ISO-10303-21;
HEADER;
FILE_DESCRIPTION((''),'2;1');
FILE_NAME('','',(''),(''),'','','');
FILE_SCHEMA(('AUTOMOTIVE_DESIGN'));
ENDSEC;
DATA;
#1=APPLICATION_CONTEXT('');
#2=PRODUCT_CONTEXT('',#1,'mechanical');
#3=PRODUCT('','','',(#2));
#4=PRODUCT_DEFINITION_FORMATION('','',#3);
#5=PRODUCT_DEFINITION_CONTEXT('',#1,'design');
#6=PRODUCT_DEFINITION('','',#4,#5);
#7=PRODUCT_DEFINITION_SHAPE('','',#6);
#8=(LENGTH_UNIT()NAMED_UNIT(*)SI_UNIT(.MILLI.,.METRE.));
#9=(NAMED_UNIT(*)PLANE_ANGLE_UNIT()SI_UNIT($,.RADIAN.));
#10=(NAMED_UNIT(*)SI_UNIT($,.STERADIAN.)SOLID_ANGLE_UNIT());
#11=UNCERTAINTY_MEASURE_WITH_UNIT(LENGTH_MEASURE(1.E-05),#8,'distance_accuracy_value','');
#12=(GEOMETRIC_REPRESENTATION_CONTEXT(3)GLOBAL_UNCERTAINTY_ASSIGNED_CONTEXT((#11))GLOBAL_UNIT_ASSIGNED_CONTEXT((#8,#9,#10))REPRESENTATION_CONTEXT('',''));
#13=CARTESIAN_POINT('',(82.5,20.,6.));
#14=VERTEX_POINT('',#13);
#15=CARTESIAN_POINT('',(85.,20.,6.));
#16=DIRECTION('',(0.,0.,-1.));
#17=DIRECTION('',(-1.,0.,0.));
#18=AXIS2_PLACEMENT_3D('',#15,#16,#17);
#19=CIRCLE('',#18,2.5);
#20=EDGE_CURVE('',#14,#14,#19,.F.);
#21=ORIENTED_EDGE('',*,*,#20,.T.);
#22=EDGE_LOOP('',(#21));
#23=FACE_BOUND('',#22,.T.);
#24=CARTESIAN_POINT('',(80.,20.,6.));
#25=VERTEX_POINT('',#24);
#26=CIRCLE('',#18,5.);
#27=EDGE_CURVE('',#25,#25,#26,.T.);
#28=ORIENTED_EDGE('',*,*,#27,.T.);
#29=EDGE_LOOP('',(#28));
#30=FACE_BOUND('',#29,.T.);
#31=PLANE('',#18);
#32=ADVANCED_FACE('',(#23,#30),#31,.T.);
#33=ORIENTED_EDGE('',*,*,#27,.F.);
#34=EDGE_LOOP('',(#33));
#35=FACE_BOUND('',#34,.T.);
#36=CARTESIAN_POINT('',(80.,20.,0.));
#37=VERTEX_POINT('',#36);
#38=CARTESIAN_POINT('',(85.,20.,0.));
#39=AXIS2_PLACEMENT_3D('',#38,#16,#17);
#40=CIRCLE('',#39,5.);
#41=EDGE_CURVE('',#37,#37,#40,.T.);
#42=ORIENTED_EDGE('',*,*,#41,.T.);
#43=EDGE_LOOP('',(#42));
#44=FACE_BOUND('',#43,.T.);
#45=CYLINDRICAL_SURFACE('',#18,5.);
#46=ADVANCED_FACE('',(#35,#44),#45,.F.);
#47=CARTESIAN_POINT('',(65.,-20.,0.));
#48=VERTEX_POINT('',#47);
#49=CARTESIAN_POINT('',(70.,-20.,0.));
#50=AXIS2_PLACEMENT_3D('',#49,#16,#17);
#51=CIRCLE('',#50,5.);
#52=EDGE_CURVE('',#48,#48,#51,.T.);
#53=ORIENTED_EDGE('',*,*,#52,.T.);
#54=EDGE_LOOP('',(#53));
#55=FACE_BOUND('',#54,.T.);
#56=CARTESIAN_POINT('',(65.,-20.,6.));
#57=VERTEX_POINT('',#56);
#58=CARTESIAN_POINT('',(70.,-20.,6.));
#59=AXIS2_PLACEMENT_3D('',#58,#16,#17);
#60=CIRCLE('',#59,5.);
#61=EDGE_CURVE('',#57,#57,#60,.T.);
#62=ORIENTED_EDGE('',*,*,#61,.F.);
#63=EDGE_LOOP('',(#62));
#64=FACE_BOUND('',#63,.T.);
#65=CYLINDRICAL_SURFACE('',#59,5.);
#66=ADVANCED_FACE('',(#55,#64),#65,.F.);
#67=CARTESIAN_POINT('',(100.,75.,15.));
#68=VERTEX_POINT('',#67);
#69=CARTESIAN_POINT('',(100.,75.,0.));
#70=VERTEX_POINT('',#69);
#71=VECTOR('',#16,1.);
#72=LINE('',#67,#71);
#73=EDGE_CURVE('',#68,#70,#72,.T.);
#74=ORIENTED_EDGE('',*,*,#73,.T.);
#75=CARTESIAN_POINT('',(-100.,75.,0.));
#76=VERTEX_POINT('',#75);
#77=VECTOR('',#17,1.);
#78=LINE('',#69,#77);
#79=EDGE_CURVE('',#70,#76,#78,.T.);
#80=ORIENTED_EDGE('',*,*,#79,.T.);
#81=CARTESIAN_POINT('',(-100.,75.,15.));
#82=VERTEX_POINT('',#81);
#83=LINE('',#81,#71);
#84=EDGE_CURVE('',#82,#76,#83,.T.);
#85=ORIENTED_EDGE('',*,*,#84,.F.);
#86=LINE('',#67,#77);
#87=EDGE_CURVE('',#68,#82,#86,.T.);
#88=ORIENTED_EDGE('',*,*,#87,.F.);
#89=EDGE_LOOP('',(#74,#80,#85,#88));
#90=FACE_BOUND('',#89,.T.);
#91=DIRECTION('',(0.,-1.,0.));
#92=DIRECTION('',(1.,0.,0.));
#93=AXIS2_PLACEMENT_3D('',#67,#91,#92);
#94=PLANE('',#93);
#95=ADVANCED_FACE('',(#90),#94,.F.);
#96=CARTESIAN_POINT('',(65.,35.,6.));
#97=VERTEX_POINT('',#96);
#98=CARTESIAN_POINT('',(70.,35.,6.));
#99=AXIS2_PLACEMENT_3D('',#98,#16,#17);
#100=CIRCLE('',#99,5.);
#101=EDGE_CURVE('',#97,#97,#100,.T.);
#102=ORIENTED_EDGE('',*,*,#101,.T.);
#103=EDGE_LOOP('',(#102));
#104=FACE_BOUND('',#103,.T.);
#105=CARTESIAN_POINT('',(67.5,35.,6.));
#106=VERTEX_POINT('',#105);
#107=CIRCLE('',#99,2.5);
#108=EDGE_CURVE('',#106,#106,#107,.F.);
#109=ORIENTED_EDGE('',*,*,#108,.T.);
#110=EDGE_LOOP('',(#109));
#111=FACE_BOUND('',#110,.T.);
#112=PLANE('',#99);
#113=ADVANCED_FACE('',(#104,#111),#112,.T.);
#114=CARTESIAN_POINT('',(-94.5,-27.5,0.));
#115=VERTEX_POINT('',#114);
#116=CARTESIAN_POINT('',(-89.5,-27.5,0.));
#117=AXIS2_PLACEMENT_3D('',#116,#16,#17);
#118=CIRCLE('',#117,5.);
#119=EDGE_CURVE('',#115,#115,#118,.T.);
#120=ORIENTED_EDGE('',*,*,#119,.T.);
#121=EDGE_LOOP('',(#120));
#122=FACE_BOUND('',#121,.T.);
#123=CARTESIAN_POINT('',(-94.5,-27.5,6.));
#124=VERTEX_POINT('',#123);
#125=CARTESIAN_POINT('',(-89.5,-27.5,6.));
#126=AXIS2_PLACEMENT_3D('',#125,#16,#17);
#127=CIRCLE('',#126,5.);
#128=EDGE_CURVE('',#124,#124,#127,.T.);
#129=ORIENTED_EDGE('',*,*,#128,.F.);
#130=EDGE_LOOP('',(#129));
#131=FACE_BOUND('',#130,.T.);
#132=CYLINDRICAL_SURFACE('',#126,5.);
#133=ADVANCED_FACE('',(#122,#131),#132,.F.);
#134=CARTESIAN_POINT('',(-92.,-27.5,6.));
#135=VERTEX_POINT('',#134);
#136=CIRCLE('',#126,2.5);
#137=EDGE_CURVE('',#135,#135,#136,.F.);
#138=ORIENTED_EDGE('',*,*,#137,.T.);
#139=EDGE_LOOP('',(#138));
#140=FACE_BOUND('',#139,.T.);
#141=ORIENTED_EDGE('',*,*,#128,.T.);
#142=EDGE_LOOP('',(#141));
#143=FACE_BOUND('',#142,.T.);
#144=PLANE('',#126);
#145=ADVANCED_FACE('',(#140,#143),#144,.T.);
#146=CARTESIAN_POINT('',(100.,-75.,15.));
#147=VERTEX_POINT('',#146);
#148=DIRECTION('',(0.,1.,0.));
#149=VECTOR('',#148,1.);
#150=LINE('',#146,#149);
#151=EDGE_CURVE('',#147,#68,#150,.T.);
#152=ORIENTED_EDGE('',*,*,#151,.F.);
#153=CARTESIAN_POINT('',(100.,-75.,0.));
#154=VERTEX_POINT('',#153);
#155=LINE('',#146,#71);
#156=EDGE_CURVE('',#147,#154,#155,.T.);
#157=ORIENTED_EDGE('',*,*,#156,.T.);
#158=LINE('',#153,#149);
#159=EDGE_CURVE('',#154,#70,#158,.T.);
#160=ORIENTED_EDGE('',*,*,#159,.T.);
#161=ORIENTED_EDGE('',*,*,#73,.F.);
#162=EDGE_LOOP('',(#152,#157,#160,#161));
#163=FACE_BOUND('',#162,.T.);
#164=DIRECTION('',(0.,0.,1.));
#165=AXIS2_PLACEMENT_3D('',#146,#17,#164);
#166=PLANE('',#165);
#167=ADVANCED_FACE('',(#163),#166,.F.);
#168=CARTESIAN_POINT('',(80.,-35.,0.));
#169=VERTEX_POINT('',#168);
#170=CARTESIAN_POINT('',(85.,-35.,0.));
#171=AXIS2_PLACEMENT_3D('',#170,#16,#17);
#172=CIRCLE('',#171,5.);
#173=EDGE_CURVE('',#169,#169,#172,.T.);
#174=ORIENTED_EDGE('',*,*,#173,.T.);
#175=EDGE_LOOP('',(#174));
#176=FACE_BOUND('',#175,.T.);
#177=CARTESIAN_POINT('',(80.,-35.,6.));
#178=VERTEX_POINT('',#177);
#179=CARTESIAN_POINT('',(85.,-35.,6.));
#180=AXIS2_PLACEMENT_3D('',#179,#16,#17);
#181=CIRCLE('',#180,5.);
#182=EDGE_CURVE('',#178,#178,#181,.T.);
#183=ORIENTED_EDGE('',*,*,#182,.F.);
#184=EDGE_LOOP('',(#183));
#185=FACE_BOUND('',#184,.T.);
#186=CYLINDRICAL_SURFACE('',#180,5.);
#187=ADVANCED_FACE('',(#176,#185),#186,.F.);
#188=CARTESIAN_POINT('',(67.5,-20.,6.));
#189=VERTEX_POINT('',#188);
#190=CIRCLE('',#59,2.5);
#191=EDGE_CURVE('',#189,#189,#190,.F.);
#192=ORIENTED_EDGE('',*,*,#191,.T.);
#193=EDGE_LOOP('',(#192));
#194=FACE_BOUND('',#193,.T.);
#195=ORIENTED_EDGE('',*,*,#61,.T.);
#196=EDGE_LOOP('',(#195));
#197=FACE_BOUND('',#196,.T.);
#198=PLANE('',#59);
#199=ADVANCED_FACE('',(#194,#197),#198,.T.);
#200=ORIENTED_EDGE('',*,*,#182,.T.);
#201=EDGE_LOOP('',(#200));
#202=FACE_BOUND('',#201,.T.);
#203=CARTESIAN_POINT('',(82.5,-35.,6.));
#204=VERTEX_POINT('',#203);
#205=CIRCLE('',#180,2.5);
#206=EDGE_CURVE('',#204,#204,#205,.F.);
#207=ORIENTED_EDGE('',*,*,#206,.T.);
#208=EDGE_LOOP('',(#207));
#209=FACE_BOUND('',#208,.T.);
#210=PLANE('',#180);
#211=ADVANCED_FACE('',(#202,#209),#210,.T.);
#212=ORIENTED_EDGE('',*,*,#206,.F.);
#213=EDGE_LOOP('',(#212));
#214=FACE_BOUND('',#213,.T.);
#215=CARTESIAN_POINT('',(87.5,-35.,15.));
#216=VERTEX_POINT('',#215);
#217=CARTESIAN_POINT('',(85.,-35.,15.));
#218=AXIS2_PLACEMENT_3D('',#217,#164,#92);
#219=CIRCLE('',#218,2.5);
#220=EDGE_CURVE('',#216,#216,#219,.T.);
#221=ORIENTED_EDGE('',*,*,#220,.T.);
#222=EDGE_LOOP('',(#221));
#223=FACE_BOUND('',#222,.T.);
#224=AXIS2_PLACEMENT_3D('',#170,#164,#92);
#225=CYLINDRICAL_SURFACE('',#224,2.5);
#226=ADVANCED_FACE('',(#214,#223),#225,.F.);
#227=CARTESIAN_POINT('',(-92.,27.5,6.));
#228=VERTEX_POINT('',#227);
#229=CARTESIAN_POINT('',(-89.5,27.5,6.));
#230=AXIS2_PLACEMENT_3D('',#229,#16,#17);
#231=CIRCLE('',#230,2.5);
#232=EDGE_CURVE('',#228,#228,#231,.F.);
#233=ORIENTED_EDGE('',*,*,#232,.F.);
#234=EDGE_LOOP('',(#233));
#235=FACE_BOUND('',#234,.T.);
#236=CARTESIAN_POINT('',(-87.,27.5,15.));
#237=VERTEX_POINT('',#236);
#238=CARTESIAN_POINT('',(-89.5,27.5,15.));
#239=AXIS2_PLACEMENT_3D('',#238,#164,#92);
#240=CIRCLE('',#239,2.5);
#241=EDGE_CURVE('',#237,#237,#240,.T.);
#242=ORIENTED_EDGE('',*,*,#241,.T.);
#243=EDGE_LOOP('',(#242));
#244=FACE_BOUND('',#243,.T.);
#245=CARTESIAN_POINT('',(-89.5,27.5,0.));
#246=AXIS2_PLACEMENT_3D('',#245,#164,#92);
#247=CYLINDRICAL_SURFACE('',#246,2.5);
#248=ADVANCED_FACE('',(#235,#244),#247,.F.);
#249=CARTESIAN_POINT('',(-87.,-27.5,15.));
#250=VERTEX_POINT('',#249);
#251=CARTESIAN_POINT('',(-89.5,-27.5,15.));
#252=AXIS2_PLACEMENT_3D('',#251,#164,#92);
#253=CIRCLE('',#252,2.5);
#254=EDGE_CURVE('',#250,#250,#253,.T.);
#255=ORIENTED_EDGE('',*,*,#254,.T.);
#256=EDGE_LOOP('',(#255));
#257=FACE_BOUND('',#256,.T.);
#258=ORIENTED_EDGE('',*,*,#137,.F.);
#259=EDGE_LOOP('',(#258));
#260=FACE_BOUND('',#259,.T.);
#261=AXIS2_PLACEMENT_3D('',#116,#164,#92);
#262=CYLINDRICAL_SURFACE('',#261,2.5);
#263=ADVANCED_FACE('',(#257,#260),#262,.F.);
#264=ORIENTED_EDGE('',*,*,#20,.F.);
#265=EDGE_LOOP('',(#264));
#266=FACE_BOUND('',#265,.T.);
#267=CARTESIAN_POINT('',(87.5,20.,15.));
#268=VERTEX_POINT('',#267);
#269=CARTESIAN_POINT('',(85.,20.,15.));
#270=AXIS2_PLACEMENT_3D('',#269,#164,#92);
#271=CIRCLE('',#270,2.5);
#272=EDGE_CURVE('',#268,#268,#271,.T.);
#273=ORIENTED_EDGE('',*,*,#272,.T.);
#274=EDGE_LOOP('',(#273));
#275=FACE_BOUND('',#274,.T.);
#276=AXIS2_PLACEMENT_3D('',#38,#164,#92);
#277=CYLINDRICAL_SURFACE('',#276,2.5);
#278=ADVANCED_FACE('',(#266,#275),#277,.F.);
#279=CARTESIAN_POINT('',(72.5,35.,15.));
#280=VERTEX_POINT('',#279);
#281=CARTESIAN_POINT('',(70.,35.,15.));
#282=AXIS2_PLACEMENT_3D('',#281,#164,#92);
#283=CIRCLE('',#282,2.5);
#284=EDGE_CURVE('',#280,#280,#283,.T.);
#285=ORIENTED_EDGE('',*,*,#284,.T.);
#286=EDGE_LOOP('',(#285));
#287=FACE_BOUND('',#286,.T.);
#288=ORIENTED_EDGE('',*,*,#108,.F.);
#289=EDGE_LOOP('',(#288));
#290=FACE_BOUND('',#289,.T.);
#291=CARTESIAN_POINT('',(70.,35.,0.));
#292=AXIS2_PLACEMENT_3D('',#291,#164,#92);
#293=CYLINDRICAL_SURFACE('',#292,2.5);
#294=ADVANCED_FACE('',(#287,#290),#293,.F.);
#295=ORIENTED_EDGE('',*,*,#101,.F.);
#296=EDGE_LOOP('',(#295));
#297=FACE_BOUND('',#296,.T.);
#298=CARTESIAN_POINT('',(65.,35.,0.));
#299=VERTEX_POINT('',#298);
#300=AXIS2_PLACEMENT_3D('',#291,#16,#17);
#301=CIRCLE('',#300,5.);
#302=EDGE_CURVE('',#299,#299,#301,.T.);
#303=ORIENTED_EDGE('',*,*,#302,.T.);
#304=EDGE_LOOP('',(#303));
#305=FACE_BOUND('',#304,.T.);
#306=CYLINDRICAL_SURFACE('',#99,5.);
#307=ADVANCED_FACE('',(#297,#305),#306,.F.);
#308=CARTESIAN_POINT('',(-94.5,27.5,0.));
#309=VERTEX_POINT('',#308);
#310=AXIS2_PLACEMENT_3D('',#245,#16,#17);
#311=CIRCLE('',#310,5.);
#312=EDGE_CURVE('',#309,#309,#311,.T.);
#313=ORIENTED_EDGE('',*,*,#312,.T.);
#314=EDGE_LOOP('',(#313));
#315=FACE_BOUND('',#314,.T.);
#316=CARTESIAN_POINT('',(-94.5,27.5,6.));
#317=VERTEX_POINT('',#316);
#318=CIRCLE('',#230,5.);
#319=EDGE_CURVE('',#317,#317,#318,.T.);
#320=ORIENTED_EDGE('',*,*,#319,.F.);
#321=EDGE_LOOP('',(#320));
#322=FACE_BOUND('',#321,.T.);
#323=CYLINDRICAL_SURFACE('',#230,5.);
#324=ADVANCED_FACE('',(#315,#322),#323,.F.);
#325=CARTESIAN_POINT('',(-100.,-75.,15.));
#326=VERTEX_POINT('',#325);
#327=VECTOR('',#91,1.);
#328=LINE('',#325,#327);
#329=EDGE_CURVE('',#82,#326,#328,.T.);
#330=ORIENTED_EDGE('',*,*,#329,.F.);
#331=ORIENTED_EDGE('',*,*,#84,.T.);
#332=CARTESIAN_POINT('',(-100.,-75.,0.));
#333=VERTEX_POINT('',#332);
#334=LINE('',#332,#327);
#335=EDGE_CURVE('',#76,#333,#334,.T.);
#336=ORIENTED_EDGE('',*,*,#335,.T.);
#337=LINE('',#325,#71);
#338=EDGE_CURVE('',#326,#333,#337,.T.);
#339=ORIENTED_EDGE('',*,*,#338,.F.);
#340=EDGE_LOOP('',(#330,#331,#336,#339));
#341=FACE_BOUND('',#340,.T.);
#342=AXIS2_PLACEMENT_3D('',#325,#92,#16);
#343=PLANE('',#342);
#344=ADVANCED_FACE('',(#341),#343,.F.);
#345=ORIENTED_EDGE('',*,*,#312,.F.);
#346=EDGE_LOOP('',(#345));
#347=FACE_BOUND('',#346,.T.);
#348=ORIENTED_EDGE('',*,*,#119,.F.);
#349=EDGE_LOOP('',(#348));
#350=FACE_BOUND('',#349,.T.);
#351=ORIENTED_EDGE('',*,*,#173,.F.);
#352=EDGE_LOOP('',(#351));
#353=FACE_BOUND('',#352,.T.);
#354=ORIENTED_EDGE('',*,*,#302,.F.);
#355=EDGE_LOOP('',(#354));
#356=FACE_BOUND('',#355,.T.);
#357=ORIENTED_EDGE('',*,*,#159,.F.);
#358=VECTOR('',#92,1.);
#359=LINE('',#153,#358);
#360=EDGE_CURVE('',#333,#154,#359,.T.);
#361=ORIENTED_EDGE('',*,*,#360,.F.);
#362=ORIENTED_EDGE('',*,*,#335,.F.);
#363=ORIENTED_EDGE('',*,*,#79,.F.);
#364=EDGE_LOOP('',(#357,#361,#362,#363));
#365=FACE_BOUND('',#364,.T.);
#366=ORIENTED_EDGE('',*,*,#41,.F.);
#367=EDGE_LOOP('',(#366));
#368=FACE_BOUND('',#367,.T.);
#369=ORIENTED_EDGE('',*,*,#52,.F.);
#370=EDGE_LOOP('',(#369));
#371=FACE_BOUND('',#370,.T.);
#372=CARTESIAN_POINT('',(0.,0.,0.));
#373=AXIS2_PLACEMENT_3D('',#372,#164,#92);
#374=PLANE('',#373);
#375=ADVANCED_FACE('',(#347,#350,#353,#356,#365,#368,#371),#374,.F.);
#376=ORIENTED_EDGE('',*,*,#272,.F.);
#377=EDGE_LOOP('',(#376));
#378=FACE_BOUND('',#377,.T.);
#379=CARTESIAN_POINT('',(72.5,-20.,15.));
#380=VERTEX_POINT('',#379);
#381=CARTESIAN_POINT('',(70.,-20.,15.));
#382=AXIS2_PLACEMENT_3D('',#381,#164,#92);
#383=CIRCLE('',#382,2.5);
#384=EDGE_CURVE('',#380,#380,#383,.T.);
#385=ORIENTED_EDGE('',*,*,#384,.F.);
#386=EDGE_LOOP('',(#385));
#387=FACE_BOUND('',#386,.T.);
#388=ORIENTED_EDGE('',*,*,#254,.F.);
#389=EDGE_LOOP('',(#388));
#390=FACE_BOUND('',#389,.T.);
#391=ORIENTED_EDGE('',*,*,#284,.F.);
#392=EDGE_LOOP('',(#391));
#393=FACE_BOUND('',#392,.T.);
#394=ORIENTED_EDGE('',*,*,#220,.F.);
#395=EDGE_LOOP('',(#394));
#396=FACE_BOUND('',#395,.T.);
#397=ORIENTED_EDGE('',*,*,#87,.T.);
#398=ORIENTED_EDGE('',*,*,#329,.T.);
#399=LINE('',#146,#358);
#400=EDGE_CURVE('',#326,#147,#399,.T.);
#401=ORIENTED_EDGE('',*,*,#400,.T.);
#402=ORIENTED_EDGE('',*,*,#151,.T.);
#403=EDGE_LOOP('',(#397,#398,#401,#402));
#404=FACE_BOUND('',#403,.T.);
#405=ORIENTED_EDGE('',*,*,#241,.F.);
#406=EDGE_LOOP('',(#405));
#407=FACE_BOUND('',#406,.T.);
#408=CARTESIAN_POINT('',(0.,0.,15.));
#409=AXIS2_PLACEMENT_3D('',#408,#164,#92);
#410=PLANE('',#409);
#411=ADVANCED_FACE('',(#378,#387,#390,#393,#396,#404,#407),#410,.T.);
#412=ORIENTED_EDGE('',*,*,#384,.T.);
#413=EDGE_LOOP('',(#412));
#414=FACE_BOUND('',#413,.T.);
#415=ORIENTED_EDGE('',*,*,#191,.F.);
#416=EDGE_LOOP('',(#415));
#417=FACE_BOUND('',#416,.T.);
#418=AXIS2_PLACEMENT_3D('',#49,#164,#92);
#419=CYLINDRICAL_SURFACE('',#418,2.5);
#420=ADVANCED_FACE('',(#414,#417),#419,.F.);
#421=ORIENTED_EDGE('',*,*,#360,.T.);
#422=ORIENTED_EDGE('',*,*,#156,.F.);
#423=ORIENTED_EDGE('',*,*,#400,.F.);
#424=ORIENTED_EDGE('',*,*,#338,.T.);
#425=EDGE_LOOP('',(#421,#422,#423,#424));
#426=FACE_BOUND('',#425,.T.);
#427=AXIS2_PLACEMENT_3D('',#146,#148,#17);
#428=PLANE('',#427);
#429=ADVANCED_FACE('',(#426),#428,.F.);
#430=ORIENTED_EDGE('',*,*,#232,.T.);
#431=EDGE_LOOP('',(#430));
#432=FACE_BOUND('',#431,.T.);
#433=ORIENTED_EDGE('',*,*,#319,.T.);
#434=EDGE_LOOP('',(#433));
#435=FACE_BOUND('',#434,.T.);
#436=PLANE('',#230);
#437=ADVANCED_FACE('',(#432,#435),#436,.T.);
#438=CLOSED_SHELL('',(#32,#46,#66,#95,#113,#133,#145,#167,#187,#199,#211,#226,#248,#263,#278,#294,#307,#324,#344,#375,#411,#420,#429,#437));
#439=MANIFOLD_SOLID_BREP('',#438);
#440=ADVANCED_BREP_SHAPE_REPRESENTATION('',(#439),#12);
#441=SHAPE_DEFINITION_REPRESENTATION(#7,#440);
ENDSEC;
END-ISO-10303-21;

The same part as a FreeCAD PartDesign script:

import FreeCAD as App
import Part
import Sketcher
from FreeCAD import Vector

doc = App.newDocument("Part")
params = doc.addObject("Spreadsheet::Sheet", "Params")
for row, (alias, value) in enumerate([
    ("sketch1_width", "200 mm"),
    ("sketch1_height", "150 mm"),
    ("pad1_length", "15 mm"),
    ("sketch2_diameter", "5 mm"),
    ("sketch3_diameter", "10 mm"),
    ("pocket2_length", "6 mm"),
], start=1):
    params.set(f"A{row}", alias)
    params.set(f"B{row}", "=" + value)
    params.setAlias(f"B{row}", alias)

body = doc.addObject("PartDesign::Body", "Body")

# Sketch on XY plane
sketch1 = body.newObject("Sketcher::SketchObject", "Sketch")
sketch1.AttachmentSupport = (doc.getObject("XY_Plane"), [""])
sketch1.MapMode = "FlatFace"
sketch1.addGeometry(Part.LineSegment(Vector(-100, 75, 0), Vector(-100, -75, 0)), False)
sketch1.addGeometry(Part.LineSegment(Vector(-100, -75, 0), Vector(100, -75, 0)), False)
sketch1.addGeometry(Part.LineSegment(Vector(100, -75, 0), Vector(100, 75, 0)), False)
sketch1.addGeometry(Part.LineSegment(Vector(100, 75, 0), Vector(-100, 75, 0)), False)
sketch1.addConstraint(Sketcher.Constraint("Coincident", 0, 2, 1, 1))
sketch1.addConstraint(Sketcher.Constraint("Coincident", 1, 2, 2, 1))
sketch1.addConstraint(Sketcher.Constraint("Coincident", 2, 2, 3, 1))
sketch1.addConstraint(Sketcher.Constraint("Coincident", 3, 2, 0, 1))
sketch1.addConstraint(Sketcher.Constraint("Vertical", 0))
sketch1.addConstraint(Sketcher.Constraint("Horizontal", 1))
sketch1.addConstraint(Sketcher.Constraint("Vertical", 2))
sketch1.addConstraint(Sketcher.Constraint("Horizontal", 3))
sketch1.addConstraint(Sketcher.Constraint("Symmetric", 0, 2, 2, 2, -1, 1))
sketch1.addConstraint(Sketcher.Constraint("DistanceX", 1, 1, 1, 2, 200.0))
sketch1.addConstraint(Sketcher.Constraint("DistanceY", 0, 2, 0, 1, 150.0))
sketch1.setExpression("Constraints[9]", "Params.sketch1_width")
sketch1.setExpression("Constraints[10]", "Params.sketch1_height")
pad1 = body.newObject("PartDesign::Pad", "Pad")
pad1.Profile = sketch1
pad1.setExpression("Length", "Params.pad1_length")

# Sketch on XY plane
sketch2 = body.newObject("Sketcher::SketchObject", "Sketch001")
sketch2.AttachmentSupport = (doc.getObject("XY_Plane"), [""])
sketch2.MapMode = "FlatFace"
sketch2.AttachmentOffset = App.Placement(Vector(0, 0, 15), App.Rotation())
sketch2.addGeometry(Part.Circle(Vector(85, -35, 0), Vector(0, 0, 1), 2.5), False)
sketch2.addGeometry(Part.Circle(Vector(70, -20, 0), Vector(0, 0, 1), 2.5), False)
sketch2.addGeometry(Part.Circle(Vector(85, 20, 0), Vector(0, 0, 1), 2.5), False)
sketch2.addGeometry(Part.Circle(Vector(70, 35, 0), Vector(0, 0, 1), 2.5), False)
sketch2.addGeometry(Part.Circle(Vector(-89.5, 27.5, 0), Vector(0, 0, 1), 2.5), False)
sketch2.addGeometry(Part.Circle(Vector(-89.5, -27.5, 0), Vector(0, 0, 1), 2.5), False)
sketch2.addConstraint(Sketcher.Constraint("Equal", 0, 1))
sketch2.addConstraint(Sketcher.Constraint("Equal", 1, 2))
sketch2.addConstraint(Sketcher.Constraint("Equal", 2, 3))
sketch2.addConstraint(Sketcher.Constraint("Equal", 3, 4))
sketch2.addConstraint(Sketcher.Constraint("Equal", 4, 5))
sketch2.addConstraint(Sketcher.Constraint("Symmetric", 4, 3, 5, 3, -1))
sketch2.addConstraint(Sketcher.Constraint("Vertical", 0, 3, 2, 3))
sketch2.addConstraint(Sketcher.Constraint("Vertical", 1, 3, 3, 3))
sketch2.addConstraint(Sketcher.Constraint("Diameter", 0, 5.0))
sketch2.addConstraint(Sketcher.Constraint("DistanceX", -1, 1, 0, 3, 85.0))
sketch2.addConstraint(Sketcher.Constraint("DistanceY", 0, 3, -1, 1, 35.0))
sketch2.addConstraint(Sketcher.Constraint("DistanceX", -1, 1, 1, 3, 70.0))
sketch2.addConstraint(Sketcher.Constraint("DistanceY", 1, 3, -1, 1, 20.0))
sketch2.addConstraint(Sketcher.Constraint("DistanceY", -1, 1, 2, 3, 20.0))
sketch2.addConstraint(Sketcher.Constraint("DistanceY", -1, 1, 3, 3, 35.0))
sketch2.addConstraint(Sketcher.Constraint("DistanceY", 5, 3, 4, 3, 55.0))
sketch2.addConstraint(Sketcher.Constraint("DistanceX", 4, 3, -1, 1, 89.5))
sketch2.setExpression("Constraints[8]", "Params.sketch2_diameter")
pocket1 = body.newObject("PartDesign::Pocket", "Pocket")
pocket1.Profile = sketch2
pocket1.Type = "ThroughAll"

# Sketch on XY plane
sketch3 = body.newObject("Sketcher::SketchObject", "Sketch002")
sketch3.AttachmentSupport = (doc.getObject("XY_Plane"), [""])
sketch3.MapMode = "FlatFace"
sketch3.addGeometry(Part.Circle(Vector(70, 35, 0), Vector(0, 0, 1), 5), False)
sketch3.addGeometry(Part.Circle(Vector(85, 20, 0), Vector(0, 0, 1), 5), False)
sketch3.addGeometry(Part.Circle(Vector(70, -20, 0), Vector(0, 0, 1), 5), False)
sketch3.addGeometry(Part.Circle(Vector(85, -35, 0), Vector(0, 0, 1), 5), False)
sketch3.addGeometry(Part.Circle(Vector(-90, -28, 0), Vector(0, 0, 1), 5), False)
sketch3.addGeometry(Part.Circle(Vector(-90, 28, 0), Vector(0, 0, 1), 5), False)
sketch3.addConstraint(Sketcher.Constraint("Equal", 0, 1))
sketch3.addConstraint(Sketcher.Constraint("Equal", 1, 2))
sketch3.addConstraint(Sketcher.Constraint("Equal", 2, 3))
sketch3.addConstraint(Sketcher.Constraint("Equal", 3, 4))
sketch3.addConstraint(Sketcher.Constraint("Equal", 4, 5))
sketch3.addConstraint(Sketcher.Constraint("Symmetric", 4, 3, 5, 3, -1))
sketch3.addConstraint(Sketcher.Constraint("Vertical", 0, 3, 2, 3))
sketch3.addConstraint(Sketcher.Constraint("Vertical", 1, 3, 3, 3))
sketch3.addConstraint(Sketcher.Constraint("Diameter", 0, 10.0))
sketch3.addConstraint(Sketcher.Constraint("DistanceX", -1, 1, 0, 3, 70.0))
sketch3.addConstraint(Sketcher.Constraint("DistanceY", -1, 1, 0, 3, 35.0))
sketch3.addConstraint(Sketcher.Constraint("DistanceX", -1, 1, 1, 3, 85.0))
sketch3.addConstraint(Sketcher.Constraint("DistanceY", -1, 1, 1, 3, 20.0))
sketch3.addConstraint(Sketcher.Constraint("DistanceY", 2, 3, -1, 1, 20.0))
sketch3.addConstraint(Sketcher.Constraint("DistanceY", 3, 3, -1, 1, 35.0))
sketch3.addConstraint(Sketcher.Constraint("DistanceY", 4, 3, 5, 3, 55.0))
sketch3.addConstraint(Sketcher.Constraint("DistanceX", 4, 3, -1, 1, 89.5))
sketch3.setExpression("Constraints[8]", "Params.sketch3_diameter")
pocket2 = body.newObject("PartDesign::Pocket", "Pocket001")
pocket2.Profile = sketch3
pocket2.setExpression("Length", "Params.pocket2_length")
pocket2.Reversed = True

doc.recompute()
